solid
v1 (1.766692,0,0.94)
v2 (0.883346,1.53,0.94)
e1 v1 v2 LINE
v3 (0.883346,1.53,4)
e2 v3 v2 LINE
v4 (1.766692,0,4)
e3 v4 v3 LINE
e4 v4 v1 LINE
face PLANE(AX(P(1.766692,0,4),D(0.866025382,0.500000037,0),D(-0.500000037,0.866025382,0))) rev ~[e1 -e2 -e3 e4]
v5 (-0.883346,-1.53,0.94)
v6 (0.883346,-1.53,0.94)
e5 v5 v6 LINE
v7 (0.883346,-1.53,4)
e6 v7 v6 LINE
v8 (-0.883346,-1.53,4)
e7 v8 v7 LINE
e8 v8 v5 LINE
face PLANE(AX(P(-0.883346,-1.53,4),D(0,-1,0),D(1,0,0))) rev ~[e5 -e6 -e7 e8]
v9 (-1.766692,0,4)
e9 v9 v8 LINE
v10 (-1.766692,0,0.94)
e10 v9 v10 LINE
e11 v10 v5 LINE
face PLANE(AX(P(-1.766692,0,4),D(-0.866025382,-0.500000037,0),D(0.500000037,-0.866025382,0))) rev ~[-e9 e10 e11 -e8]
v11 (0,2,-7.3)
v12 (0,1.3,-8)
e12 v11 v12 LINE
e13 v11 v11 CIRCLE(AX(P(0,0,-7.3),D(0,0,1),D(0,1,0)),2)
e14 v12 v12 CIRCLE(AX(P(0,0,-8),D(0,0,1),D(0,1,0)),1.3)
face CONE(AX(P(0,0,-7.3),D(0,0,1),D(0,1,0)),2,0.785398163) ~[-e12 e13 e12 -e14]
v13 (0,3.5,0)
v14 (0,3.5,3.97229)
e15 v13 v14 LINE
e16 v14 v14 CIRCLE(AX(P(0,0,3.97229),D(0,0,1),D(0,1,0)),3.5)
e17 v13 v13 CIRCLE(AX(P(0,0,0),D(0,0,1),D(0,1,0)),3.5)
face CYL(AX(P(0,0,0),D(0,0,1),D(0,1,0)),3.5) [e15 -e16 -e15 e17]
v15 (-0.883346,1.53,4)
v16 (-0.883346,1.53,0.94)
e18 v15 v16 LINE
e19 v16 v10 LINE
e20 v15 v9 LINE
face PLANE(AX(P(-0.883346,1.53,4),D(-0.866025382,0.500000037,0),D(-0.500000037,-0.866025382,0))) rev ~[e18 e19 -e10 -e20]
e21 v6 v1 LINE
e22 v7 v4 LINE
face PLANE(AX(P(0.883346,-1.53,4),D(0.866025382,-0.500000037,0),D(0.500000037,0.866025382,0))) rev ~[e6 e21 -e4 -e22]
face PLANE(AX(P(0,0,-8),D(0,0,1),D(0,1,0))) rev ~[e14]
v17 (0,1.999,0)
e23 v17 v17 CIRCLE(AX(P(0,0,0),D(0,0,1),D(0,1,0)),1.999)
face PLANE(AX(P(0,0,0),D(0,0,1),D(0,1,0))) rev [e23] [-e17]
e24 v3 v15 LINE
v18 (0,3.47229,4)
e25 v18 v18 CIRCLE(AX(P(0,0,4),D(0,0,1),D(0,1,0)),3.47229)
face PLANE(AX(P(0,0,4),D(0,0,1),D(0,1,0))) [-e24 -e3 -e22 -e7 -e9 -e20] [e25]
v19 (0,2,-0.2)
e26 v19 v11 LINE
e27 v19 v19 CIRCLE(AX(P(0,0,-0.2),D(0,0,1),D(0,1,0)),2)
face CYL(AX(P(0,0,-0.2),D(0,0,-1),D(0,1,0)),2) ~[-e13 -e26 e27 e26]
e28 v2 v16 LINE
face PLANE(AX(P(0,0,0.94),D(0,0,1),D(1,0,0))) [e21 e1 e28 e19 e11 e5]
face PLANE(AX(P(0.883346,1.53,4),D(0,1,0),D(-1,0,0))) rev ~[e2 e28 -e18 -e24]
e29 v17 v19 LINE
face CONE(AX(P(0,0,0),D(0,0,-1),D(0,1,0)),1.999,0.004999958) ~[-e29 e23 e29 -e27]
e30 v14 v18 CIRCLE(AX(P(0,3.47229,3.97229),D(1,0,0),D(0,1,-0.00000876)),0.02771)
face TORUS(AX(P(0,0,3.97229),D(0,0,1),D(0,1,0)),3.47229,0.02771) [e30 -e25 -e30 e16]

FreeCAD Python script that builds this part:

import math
import FreeCAD as App
import Part
import Sketcher
from FreeCAD import Vector
Q = App.Units.Quantity

doc = App.newDocument("Part")
body = doc.addObject("PartDesign::Body", "Body")

sketch1 = body.newObject("Sketcher::SketchObject", "Sketch")
sketch1.AttachmentSupport = (doc.getObject("YZ_Plane"), [""])
sketch1.MapMode = "FlatFace"
sketch1.addGeometry(Part.LineSegment(Vector(1.999, 0, 0), Vector(3.5, 0, 0)), False)
sketch1.addGeometry(Part.LineSegment(Vector(3.5, 0, 0), Vector(3.5, 3.972, 0)), False)
sketch1.addGeometry(Part.ArcOfCircle(Part.Circle(Vector(3.472, 3.972, 0), Vector(0, 0, 1), 0.028), math.radians(0), math.radians(90)), False)
sketch1.addGeometry(Part.LineSegment(Vector(3.472, 4, 0), Vector(0, 4, 0)), False)
sketch1.addGeometry(Part.LineSegment(Vector(0, 4, 0), Vector(0, -8, 0)), False)
sketch1.addGeometry(Part.LineSegment(Vector(0, -8, 0), Vector(1.3, -8, 0)), False)
sketch1.addGeometry(Part.LineSegment(Vector(1.3, -8, 0), Vector(2, -7.3, 0)), False)
sketch1.addGeometry(Part.LineSegment(Vector(2, -7.3, 0), Vector(2, -0.2, 0)), False)
sketch1.addGeometry(Part.LineSegment(Vector(2, -0.2, 0), Vector(1.999, 0, 0)), False)
sketch1.addConstraint(Sketcher.Constraint("Coincident", 0, 2, 1, 1))
sketch1.addConstraint(Sketcher.Constraint("Coincident", 1, 2, 2, 1))
sketch1.addConstraint(Sketcher.Constraint("Coincident", 2, 2, 3, 1))
sketch1.addConstraint(Sketcher.Constraint("Coincident", 3, 2, 4, 1))
sketch1.addConstraint(Sketcher.Constraint("Coincident", 4, 2, 5, 1))
sketch1.addConstraint(Sketcher.Constraint("Coincident", 5, 2, 6, 1))
sketch1.addConstraint(Sketcher.Constraint("Coincident", 6, 2, 7, 1))
sketch1.addConstraint(Sketcher.Constraint("Coincident", 7, 2, 8, 1))
sketch1.addConstraint(Sketcher.Constraint("Coincident", 8, 2, 0, 1))
sketch1.addConstraint(Sketcher.Constraint("Horizontal", 0))
sketch1.addConstraint(Sketcher.Constraint("Vertical", 1))
sketch1.addConstraint(Sketcher.Constraint("Horizontal", 3))
sketch1.addConstraint(Sketcher.Constraint("Vertical", 4))
sketch1.addConstraint(Sketcher.Constraint("Horizontal", 5))
sketch1.addConstraint(Sketcher.Constraint("Vertical", 7))
sketch1.addConstraint(Sketcher.Constraint("PointOnObject", 0, 2, -1))
sketch1.addConstraint(Sketcher.Constraint("PointOnObject", 3, 2, -2))
sketch1.addConstraint(Sketcher.Constraint("Horizontal", 2, 3, 1, 2))
sketch1.addConstraint(Sketcher.Constraint("DistanceY", 4, 2, 4, 1, Q("12 mm")))
sketch1.addConstraint(Sketcher.Constraint("Angle", 6, Q("45 deg")))
sketch1.addConstraint(Sketcher.Constraint("DistanceX", 5, 1, 5, 2, Q("1.3 mm")))
sketch1.addConstraint(Sketcher.Constraint("DistanceY", 7, 1, 7, 2, Q("7.1 mm")))
sketch1.addConstraint(Sketcher.Constraint("DistanceY", -1, 1, 2, 2, Q("4 mm")))
sketch1.addConstraint(Sketcher.Constraint("DistanceX", -1, 1, 6, 2, Q("2 mm")))
sketch1.addConstraint(Sketcher.Constraint("DistanceX", -1, 1, 0, 2, Q("3.5 mm")))
sketch1.addConstraint(Sketcher.Constraint("DistanceX", 0, 1, 0, 2, Q("1.501 mm")))
sketch1.addConstraint(Sketcher.Constraint("Radius", 2, Q("0.02771 mm")))
sketch1.addConstraint(Sketcher.Constraint("DistanceX", 3, 2, 3, 1, Q("3.47229 mm")))
revolution = body.newObject("PartDesign::Revolution", "Revolution")
revolution.Profile = sketch1
revolution.ReferenceAxis = (sketch1, ["V_Axis"])
revolution.Angle = 360

sketch2 = body.newObject("Sketcher::SketchObject", "Sketch001")
sketch2.AttachmentSupport = (doc.getObject("XY_Plane"), [""])
sketch2.MapMode = "FlatFace"
sketch2.AttachmentOffset = App.Placement(Vector(0, 0, 4), App.Rotation())
sketch2.addGeometry(Part.LineSegment(Vector(1.8, 0, 0), Vector(0.9, 1.5, 0)), False)
sketch2.addGeometry(Part.LineSegment(Vector(0.9, 1.5, 0), Vector(-0.9, 1.5, 0)), False)
sketch2.addGeometry(Part.LineSegment(Vector(-0.9, 1.5, 0), Vector(-1.8, 0, 0)), False)
sketch2.addGeometry(Part.LineSegment(Vector(-1.8, 0, 0), Vector(-0.9, -1.5, 0)), False)
sketch2.addGeometry(Part.LineSegment(Vector(-0.9, -1.5, 0), Vector(0.9, -1.5, 0)), False)
sketch2.addGeometry(Part.LineSegment(Vector(0.9, -1.5, 0), Vector(1.8, 0, 0)), False)
sketch2.addConstraint(Sketcher.Constraint("Coincident", 0, 2, 1, 1))
sketch2.addConstraint(Sketcher.Constraint("Coincident", 1, 2, 2, 1))
sketch2.addConstraint(Sketcher.Constraint("Coincident", 2, 2, 3, 1))
sketch2.addConstraint(Sketcher.Constraint("Coincident", 3, 2, 4, 1))
sketch2.addConstraint(Sketcher.Constraint("Coincident", 4, 2, 5, 1))
sketch2.addConstraint(Sketcher.Constraint("Coincident", 5, 2, 0, 1))
sketch2.addConstraint(Sketcher.Constraint("Horizontal", 1))
sketch2.addConstraint(Sketcher.Constraint("Horizontal", 4))
sketch2.addConstraint(Sketcher.Constraint("Symmetric", 0, 2, 3, 2, -1, 1))
sketch2.addConstraint(Sketcher.Constraint("Symmetric", 2, 2, 5, 2, -1, 1))
sketch2.addConstraint(Sketcher.Constraint("PointOnObject", 2, 2, -1))
sketch2.addConstraint(Sketcher.Constraint("Parallel", 2, 5))
sketch2.addConstraint(Sketcher.Constraint("Vertical", 1, 2, 3, 2))
sketch2.addConstraint(Sketcher.Constraint("Angle", 0, Q("120.000002 deg")))
sketch2.addConstraint(Sketcher.Constraint("DistanceY", -1, 1, 0, 2, Q("1.53 mm")))
sketch2.addConstraint(Sketcher.Constraint("DistanceX", 1, 2, 1, 1, Q("1.766692 mm")))
pocket1 = body.newObject("PartDesign::Pocket", "Pocket")
pocket1.Profile = sketch2
pocket1.Length = 3.06

doc.recompute()
